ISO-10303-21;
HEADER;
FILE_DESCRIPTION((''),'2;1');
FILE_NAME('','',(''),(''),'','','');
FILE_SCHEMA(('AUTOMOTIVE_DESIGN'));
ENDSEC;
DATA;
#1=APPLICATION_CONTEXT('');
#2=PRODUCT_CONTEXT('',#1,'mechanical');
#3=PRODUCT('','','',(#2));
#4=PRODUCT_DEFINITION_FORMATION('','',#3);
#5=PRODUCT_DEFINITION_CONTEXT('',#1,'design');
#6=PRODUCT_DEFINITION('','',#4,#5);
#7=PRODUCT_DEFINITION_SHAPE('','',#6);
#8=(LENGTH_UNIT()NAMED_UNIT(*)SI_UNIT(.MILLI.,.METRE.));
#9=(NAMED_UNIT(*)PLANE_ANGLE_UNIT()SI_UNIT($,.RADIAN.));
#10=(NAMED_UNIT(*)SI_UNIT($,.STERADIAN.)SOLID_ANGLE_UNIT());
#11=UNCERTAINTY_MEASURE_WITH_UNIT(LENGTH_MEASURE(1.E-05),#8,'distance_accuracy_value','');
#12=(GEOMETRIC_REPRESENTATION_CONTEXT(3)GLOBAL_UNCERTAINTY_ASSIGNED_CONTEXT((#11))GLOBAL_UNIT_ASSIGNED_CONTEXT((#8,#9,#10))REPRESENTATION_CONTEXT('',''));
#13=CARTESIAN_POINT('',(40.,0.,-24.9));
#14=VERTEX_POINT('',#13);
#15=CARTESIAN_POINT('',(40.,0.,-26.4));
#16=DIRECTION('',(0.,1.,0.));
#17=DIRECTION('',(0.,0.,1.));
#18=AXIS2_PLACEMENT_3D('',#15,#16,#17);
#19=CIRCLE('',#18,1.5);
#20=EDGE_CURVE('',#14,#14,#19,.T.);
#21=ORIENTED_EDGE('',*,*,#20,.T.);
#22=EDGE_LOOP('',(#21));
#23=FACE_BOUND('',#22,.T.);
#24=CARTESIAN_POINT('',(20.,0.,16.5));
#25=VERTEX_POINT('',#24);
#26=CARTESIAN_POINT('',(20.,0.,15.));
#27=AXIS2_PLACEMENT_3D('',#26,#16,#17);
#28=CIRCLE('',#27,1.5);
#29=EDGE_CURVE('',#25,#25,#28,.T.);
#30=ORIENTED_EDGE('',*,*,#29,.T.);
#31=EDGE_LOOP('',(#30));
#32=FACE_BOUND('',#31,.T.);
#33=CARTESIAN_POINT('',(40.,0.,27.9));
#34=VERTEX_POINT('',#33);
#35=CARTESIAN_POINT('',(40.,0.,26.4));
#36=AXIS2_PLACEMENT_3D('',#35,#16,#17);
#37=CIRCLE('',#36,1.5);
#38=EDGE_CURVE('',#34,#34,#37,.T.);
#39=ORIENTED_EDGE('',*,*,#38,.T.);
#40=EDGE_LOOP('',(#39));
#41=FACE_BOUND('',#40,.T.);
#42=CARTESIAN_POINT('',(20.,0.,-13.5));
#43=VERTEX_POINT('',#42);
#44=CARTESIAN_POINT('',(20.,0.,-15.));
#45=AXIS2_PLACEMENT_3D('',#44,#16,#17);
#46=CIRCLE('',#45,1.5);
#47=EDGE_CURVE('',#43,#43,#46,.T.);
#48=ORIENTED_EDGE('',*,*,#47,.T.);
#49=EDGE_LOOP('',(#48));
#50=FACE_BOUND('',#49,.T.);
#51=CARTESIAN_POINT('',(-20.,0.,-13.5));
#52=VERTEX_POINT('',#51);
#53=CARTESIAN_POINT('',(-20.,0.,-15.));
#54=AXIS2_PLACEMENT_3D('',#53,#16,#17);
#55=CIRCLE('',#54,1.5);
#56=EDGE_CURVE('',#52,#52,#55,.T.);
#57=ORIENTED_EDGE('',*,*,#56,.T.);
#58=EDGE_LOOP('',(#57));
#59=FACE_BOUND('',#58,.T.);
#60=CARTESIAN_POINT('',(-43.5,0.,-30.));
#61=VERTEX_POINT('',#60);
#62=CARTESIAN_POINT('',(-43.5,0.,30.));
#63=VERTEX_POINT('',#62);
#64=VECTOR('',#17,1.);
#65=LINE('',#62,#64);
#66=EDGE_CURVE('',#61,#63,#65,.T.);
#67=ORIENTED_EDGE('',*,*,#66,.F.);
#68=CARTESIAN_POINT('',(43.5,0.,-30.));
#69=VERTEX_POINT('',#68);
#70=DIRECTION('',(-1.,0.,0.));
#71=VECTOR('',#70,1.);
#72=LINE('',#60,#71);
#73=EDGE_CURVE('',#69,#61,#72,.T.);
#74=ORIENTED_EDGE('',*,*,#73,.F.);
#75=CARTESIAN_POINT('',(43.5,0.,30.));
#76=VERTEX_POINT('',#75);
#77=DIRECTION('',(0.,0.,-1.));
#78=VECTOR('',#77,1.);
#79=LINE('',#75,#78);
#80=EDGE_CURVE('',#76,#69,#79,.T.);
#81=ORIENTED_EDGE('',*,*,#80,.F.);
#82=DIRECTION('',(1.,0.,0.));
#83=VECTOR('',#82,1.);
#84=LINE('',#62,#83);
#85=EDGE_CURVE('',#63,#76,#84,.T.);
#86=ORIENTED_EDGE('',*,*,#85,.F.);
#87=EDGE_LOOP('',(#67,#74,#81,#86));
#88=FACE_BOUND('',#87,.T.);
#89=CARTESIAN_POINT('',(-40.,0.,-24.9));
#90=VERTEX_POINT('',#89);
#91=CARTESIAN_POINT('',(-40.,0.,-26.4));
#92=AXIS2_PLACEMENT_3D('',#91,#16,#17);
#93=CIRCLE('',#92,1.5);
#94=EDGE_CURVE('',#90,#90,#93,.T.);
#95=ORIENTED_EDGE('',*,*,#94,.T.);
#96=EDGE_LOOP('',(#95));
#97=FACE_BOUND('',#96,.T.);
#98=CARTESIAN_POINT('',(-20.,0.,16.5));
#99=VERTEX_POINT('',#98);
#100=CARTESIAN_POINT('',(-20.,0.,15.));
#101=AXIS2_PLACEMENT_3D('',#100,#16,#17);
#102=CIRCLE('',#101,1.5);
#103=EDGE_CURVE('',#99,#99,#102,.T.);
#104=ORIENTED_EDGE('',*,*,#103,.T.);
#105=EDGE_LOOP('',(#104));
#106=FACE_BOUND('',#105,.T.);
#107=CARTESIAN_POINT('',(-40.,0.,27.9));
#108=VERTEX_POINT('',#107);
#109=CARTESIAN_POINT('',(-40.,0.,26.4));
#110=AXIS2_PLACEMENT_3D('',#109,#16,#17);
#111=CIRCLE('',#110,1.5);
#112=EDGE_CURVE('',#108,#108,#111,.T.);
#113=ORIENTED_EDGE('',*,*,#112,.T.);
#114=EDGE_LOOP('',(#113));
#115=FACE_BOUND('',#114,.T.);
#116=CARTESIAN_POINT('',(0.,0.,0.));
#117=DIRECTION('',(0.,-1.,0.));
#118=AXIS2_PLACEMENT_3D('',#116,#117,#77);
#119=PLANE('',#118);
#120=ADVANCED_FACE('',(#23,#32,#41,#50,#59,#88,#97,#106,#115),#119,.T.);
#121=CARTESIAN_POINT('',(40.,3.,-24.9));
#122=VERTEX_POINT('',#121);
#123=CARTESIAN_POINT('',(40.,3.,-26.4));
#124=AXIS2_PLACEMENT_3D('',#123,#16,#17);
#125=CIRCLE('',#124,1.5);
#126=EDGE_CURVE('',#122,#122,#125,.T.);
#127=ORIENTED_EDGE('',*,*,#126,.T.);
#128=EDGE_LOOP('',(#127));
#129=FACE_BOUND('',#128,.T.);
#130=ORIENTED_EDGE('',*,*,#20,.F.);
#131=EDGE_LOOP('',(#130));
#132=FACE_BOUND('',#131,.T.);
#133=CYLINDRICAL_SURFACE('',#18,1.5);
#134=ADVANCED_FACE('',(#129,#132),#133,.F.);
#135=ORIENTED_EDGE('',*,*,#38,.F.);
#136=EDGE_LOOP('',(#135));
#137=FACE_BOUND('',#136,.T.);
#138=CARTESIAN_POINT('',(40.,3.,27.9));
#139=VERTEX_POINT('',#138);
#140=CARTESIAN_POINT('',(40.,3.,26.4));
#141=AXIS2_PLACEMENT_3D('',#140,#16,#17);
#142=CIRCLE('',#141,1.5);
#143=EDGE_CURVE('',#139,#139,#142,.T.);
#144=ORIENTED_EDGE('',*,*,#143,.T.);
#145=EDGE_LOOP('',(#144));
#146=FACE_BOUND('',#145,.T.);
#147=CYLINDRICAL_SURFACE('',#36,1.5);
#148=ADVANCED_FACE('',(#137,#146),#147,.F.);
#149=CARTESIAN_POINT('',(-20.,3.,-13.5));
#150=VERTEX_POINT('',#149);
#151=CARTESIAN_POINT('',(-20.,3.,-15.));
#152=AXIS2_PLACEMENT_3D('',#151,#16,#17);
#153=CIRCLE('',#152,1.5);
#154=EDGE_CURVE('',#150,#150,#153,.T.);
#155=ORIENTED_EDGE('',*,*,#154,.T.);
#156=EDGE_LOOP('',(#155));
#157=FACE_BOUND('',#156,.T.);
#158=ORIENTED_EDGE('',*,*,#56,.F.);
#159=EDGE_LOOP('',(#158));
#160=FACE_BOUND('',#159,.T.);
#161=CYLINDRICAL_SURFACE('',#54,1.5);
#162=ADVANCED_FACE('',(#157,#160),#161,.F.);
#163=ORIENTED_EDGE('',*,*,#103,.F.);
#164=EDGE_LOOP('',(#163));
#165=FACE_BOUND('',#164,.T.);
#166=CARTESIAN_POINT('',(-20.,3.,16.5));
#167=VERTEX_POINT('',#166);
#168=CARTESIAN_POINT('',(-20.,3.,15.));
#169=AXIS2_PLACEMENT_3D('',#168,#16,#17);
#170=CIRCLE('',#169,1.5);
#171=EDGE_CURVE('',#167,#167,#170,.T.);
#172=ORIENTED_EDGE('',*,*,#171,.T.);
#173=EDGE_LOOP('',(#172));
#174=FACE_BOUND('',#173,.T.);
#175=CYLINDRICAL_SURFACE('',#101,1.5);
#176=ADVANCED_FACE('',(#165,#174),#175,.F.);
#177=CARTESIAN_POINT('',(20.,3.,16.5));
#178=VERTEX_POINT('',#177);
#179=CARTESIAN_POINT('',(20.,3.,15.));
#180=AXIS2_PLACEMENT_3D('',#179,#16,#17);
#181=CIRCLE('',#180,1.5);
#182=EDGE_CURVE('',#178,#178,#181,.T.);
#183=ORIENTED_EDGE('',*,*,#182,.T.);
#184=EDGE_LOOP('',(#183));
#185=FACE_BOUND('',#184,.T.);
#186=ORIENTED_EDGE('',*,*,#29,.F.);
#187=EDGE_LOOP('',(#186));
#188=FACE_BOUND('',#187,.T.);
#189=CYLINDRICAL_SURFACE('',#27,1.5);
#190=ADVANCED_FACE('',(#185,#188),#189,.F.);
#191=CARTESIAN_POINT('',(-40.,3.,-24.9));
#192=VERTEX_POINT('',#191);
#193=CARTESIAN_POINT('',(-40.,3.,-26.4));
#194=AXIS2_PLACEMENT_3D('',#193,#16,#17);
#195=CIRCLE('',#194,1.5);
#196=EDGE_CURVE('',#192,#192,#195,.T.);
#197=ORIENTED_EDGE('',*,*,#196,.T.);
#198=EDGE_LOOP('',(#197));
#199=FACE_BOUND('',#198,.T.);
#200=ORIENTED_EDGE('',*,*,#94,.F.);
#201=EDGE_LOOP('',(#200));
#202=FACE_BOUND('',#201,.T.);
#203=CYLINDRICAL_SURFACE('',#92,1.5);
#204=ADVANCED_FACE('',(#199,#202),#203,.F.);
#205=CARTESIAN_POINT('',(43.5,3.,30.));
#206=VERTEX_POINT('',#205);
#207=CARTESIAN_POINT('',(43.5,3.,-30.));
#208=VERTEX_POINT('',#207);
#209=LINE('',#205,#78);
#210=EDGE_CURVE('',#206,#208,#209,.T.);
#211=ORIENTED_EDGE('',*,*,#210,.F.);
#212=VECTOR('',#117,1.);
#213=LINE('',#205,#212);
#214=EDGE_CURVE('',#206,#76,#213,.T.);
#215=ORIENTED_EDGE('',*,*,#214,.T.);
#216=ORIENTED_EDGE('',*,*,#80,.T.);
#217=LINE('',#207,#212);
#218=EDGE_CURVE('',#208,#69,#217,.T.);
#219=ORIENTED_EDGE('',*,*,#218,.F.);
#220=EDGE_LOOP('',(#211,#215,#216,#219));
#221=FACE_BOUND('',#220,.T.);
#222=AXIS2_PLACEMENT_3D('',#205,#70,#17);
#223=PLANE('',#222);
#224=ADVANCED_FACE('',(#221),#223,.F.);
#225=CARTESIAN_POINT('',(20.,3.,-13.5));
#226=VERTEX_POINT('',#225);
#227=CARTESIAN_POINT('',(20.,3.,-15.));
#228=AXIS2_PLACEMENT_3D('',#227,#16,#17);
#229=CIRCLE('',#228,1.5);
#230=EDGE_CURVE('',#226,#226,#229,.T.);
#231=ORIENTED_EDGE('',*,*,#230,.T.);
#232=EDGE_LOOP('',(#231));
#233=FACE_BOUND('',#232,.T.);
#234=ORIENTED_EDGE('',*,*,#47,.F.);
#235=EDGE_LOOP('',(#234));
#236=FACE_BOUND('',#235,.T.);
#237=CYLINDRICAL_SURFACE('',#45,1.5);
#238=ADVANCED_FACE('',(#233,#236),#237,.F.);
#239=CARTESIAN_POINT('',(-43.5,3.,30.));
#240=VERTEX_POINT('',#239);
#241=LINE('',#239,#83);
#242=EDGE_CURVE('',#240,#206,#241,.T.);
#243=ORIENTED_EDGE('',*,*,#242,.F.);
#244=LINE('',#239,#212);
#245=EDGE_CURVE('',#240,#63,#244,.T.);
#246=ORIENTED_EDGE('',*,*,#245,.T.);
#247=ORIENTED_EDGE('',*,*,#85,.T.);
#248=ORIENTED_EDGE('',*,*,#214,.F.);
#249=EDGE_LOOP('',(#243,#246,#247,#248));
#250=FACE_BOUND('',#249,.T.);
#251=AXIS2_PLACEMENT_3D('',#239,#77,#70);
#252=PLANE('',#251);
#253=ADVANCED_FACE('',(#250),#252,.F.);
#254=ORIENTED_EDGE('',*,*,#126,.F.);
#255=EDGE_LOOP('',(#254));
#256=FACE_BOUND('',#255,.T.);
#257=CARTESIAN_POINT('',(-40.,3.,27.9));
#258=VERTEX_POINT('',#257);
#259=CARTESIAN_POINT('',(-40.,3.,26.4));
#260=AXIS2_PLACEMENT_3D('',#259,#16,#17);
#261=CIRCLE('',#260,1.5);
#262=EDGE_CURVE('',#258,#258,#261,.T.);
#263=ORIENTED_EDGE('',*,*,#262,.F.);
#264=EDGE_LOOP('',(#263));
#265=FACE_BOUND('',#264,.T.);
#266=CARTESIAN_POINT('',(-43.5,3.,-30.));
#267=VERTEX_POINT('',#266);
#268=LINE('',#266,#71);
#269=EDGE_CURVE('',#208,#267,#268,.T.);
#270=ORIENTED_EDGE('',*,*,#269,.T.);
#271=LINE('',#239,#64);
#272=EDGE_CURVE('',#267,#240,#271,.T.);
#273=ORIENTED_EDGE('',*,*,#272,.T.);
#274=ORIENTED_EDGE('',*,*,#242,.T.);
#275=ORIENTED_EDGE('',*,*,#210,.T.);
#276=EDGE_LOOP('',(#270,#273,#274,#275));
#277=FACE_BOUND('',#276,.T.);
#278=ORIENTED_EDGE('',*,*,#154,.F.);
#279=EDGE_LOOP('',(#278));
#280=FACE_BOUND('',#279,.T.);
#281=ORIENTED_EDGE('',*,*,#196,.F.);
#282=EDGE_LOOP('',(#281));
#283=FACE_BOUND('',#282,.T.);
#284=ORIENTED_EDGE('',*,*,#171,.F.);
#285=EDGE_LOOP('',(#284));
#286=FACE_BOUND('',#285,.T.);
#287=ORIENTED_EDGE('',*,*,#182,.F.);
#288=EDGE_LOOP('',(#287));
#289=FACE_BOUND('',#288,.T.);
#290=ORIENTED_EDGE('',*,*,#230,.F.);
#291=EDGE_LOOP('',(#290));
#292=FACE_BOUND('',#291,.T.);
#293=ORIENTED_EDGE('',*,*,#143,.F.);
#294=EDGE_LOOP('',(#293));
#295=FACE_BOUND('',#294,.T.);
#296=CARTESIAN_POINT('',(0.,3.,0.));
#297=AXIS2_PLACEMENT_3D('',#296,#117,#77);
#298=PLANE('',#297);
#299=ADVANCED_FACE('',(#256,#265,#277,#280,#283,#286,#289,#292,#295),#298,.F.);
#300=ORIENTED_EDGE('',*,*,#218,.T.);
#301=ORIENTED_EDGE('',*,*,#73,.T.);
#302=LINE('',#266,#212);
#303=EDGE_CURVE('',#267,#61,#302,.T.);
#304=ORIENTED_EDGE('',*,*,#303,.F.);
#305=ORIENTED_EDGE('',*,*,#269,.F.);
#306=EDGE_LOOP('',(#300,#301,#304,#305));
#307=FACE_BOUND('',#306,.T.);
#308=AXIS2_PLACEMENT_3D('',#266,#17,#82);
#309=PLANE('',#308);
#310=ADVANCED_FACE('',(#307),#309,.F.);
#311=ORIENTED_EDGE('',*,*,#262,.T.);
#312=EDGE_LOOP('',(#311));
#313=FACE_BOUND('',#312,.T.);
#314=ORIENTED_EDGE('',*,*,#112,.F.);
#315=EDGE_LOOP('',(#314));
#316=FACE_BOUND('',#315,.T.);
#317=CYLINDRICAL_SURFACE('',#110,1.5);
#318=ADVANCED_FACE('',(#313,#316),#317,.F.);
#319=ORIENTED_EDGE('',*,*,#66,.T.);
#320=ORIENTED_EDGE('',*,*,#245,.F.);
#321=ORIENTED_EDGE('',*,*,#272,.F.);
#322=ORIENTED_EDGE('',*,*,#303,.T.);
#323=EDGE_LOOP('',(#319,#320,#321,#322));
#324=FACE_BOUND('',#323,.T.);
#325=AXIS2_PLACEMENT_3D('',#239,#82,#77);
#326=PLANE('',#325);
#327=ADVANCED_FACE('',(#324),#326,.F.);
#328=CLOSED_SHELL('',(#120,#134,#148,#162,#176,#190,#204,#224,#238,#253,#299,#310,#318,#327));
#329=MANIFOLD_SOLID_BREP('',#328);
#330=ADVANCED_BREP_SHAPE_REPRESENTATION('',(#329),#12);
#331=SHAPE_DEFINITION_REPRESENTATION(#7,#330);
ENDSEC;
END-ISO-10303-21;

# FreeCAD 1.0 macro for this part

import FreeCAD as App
import Part
import Sketcher
Q = App.Units.Quantity


def add_polygon(sketch, points):
    """Adds a closed chain of lines whose ends are joined by coincident constraints."""
    first, n = sketch.GeometryCount, len(points)
    for a, b in zip(points, points[1:] + points[:1]):
        sketch.addGeometry(Part.LineSegment(App.Vector(*a, 0), App.Vector(*b, 0)), False)
    for i in range(n):
        sketch.addConstraint(Sketcher.Constraint("Coincident", first + i, 2, first + (i + 1) % n, 1))

doc = App.newDocument("Part")
params = doc.addObject("Spreadsheet::Sheet", "Params")
for row, (alias, value) in enumerate([
    ("sketch1_width", "87 mm"),
    ("sketch1_height", "60 mm"),
    ("pad1_length", "3 mm"),
    ("sketch2_diameter", "3 mm"),
    ("sketch3_diameter", "3 mm"),
], start=1):
    params.set(f"A{row}", alias)
    params.set(f"B{row}", "=" + value)
    params.setAlias(f"B{row}", alias)

body = doc.addObject("PartDesign::Body", "Body")

# Sketch on XZ plane
sketch1 = body.newObject("Sketcher::SketchObject", "Sketch")
sketch1.AttachmentSupport = (doc.getObject("XZ_Plane"), [""])
sketch1.MapMode = "FlatFace"
add_polygon(sketch1, [(-44, -30), (-44, 30), (44, 30), (44, -30)])  # lines 0-3
sketch1.addConstraint(Sketcher.Constraint("Vertical", 0))
sketch1.addConstraint(Sketcher.Constraint("Horizontal", 1))
sketch1.addConstraint(Sketcher.Constraint("Vertical", 2))
sketch1.addConstraint(Sketcher.Constraint("Horizontal", 3))
sketch1.addConstraint(Sketcher.Constraint("Symmetric", 0, 2, 2, 2, -1, 1))
sketch1.addConstraint(Sketcher.Constraint("DistanceX", 1, 1, 1, 2, Q("87 mm")))
sketch1.addConstraint(Sketcher.Constraint("DistanceY", 0, 1, 0, 2, Q("60 mm")))
sketch1.setExpression("Constraints[9]", "Params.sketch1_width")
sketch1.setExpression("Constraints[10]", "Params.sketch1_height")
pad1 = body.newObject("PartDesign::Pad", "Pad")
pad1.Profile = sketch1
pad1.setExpression("Length", "Params.pad1_length")
pad1.Reversed = True

# Sketch on XZ plane
sketch2 = body.newObject("Sketcher::SketchObject", "Sketch001")
sketch2.AttachmentSupport = (doc.getObject("XZ_Plane"), [""])
sketch2.MapMode = "FlatFace"
sketch2.AttachmentOffset = App.Placement(App.Vector(0, 0, -3), App.Rotation())
sketch2.addGeometry(Part.Circle(App.Vector(-40, -26.4, 0), App.Vector(0, 0, 1), 1.5), False)
sketch2.addGeometry(Part.Circle(App.Vector(40, -26.4, 0), App.Vector(0, 0, 1), 1.5), False)
sketch2.addGeometry(Part.Circle(App.Vector(40, 26.4, 0), App.Vector(0, 0, 1), 1.5), False)
sketch2.addGeometry(Part.Circle(App.Vector(-40, 26.4, 0), App.Vector(0, 0, 1), 1.5), False)
sketch2.addConstraint(Sketcher.Constraint("Equal", 0, 1))
sketch2.addConstraint(Sketcher.Constraint("Equal", 1, 2))
sketch2.addConstraint(Sketcher.Constraint("Equal", 2, 3))
sketch2.addConstraint(Sketcher.Constraint("Symmetric", 0, 3, 2, 3, -1, 1))
sketch2.addConstraint(Sketcher.Constraint("Symmetric", 1, 3, 3, 3, -1, 1))
sketch2.addConstraint(Sketcher.Constraint("Symmetric", 0, 3, 1, 3, -2))
sketch2.addConstraint(Sketcher.Constraint("Diameter", 0, Q("3 mm")))
sketch2.addConstraint(Sketcher.Constraint("DistanceX", 0, 3, -1, 1, Q("40 mm")))
sketch2.addConstraint(Sketcher.Constraint("DistanceY", 0, 3, -1, 1, Q("26.4 mm")))
sketch2.setExpression("Constraints[6]", "Params.sketch2_diameter")
pocket1 = body.newObject("PartDesign::Pocket", "Pocket")
pocket1.Profile = sketch2
pocket1.Type = "ThroughAll"
pocket1.Reversed = True

# Sketch on XZ plane
sketch3 = body.newObject("Sketcher::SketchObject", "Sketch002")
sketch3.AttachmentSupport = (doc.getObject("XZ_Plane"), [""])
sketch3.MapMode = "FlatFace"
sketch3.AttachmentOffset = App.Placement(App.Vector(0, 0, -3), App.Rotation())
sketch3.addGeometry(Part.Circle(App.Vector(20, -15, 0), App.Vector(0, 0, 1), 1.5), False)
sketch3.addGeometry(Part.Circle(App.Vector(20, 15, 0), App.Vector(0, 0, 1), 1.5), False)
sketch3.addGeometry(Part.Circle(App.Vector(-20, -15, 0), App.Vector(0, 0, 1), 1.5), False)
sketch3.addGeometry(Part.Circle(App.Vector(-20, 15, 0), App.Vector(0, 0, 1), 1.5), False)
sketch3.addConstraint(Sketcher.Constraint("Equal", 0, 1))
sketch3.addConstraint(Sketcher.Constraint("Equal", 1, 2))
sketch3.addConstraint(Sketcher.Constraint("Equal", 2, 3))
sketch3.addConstraint(Sketcher.Constraint("Symmetric", 1, 3, 2, 3, -1, 1))
sketch3.addConstraint(Sketcher.Constraint("Symmetric", 0, 3, 3, 3, -1, 1))
sketch3.addConstraint(Sketcher.Constraint("Symmetric", 0, 3, 2, 3, -2))
sketch3.addConstraint(Sketcher.Constraint("Diameter", 0, Q("3 mm")))
sketch3.addConstraint(Sketcher.Constraint("DistanceX", -1, 1, 0, 3, Q("20 mm")))
sketch3.addConstraint(Sketcher.Constraint("DistanceY", 0, 3, -1, 1, Q("15 mm")))
sketch3.setExpression("Constraints[6]", "Params.sketch3_diameter")
pocket2 = body.newObject("PartDesign::Pocket", "Pocket001")
pocket2.Profile = sketch3
pocket2.Type = "ThroughAll"
pocket2.Reversed = True

doc.recompute()
